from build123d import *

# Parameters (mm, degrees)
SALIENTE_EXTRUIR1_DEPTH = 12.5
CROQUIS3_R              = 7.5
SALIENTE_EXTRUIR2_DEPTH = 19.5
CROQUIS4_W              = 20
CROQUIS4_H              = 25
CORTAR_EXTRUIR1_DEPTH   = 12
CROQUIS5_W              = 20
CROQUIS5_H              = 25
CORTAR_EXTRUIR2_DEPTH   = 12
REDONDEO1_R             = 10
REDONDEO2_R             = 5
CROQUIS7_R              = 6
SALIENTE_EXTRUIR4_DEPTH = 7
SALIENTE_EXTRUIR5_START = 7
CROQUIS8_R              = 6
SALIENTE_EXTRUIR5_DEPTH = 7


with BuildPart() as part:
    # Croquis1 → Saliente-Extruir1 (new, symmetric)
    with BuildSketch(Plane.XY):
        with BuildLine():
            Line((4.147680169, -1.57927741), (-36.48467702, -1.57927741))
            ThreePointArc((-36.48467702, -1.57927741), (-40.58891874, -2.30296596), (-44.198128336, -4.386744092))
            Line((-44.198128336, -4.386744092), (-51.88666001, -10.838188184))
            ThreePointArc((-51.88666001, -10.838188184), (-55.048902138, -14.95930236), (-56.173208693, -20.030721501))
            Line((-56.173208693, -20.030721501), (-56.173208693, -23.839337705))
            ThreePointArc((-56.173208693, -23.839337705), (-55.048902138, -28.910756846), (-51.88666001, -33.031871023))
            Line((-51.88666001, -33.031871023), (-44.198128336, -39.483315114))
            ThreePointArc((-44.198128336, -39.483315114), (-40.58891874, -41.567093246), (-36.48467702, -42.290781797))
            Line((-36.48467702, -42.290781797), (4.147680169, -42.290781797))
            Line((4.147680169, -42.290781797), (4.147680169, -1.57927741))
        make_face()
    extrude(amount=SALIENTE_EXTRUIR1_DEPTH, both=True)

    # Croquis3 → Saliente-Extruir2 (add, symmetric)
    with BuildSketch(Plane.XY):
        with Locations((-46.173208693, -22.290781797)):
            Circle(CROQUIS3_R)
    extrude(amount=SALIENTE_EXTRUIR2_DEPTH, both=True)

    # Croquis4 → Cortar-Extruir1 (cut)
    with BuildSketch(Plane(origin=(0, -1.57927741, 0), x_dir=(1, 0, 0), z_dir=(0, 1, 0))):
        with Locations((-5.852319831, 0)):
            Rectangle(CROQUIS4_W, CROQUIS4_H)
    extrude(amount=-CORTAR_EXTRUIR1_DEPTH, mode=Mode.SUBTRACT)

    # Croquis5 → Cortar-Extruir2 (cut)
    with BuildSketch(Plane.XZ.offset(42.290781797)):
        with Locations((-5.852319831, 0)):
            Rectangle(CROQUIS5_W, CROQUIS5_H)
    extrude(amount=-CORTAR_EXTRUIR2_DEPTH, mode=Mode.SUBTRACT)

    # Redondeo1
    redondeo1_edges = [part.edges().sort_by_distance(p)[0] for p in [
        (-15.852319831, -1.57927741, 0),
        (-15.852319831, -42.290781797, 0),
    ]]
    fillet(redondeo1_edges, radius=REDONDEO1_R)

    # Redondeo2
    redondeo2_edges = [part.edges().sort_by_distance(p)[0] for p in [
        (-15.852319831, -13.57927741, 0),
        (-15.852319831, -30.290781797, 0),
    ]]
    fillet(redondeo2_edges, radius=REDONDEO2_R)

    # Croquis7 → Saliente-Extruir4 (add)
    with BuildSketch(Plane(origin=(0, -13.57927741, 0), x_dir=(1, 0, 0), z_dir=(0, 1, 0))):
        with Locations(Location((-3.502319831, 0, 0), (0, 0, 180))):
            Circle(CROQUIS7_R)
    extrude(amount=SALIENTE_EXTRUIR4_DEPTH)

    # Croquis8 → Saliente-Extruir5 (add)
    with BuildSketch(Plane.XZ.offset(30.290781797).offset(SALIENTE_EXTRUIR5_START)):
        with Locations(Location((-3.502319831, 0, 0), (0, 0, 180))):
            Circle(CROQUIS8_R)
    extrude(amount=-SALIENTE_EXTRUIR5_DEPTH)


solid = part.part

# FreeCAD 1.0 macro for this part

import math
import FreeCAD as App
import Part
import Sketcher
from FreeCAD import Vector
Q = App.Units.Quantity


def edges_at(feature, points):
    """Names of the edges that pass closest to the given points."""
    edges = feature.Shape.Edges
    near = lambda p: min(range(len(edges)), key=lambda i: edges[i].distToShape(Part.Vertex(*p))[0])
    return sorted({f"Edge{near(p) + 1}" for p in points})

doc = App.newDocument("Part")
body = doc.addObject("PartDesign::Body", "Body")

sketch1 = body.newObject("Sketcher::SketchObject", "Sketch")
sketch1.AttachmentSupport = (doc.getObject("XY_Plane"), [""])
sketch1.MapMode = "FlatFace"
sketch1.addGeometry(Part.LineSegment(Vector(4.1, -1.6, 0), Vector(-36.5, -1.6, 0)), False)
sketch1.addGeometry(Part.ArcOfCircle(Part.Circle(Vector(-36.5, -13.6, 0), Vector(0, 0, 1), 12), math.radians(90), math.radians(130)), False)
sketch1.addGeometry(Part.LineSegment(Vector(-44.2, -4.4, 0), Vector(-51.9, -10.8, 0)), False)
sketch1.addGeometry(Part.ArcOfCircle(Part.Circle(Vector(-44.2, -20, 0), Vector(0, 0, 1), 12), math.radians(130), math.radians(180)), False)
sketch1.addGeometry(Part.LineSegment(Vector(-56.2, -20, 0), Vector(-56.2, -23.8, 0)), False)
sketch1.addGeometry(Part.ArcOfCircle(Part.Circle(Vector(-44.2, -23.8, 0), Vector(0, 0, 1), 12), math.radians(180), math.radians(230)), False)
sketch1.addGeometry(Part.LineSegment(Vector(-51.9, -33, 0), Vector(-44.2, -39.5, 0)), False)
sketch1.addGeometry(Part.ArcOfCircle(Part.Circle(Vector(-36.5, -30.3, 0), Vector(0, 0, 1), 12), math.radians(-130), math.radians(-90)), False)
sketch1.addGeometry(Part.LineSegment(Vector(-36.5, -42.3, 0), Vector(4.1, -42.3, 0)), False)
sketch1.addGeometry(Part.LineSegment(Vector(4.1, -42.3, 0), Vector(4.1, -1.6, 0)), False)
sketch1.addConstraint(Sketcher.Constraint("Tangent", 0, 2, 1, 1))
sketch1.addConstraint(Sketcher.Constraint("Tangent", 1, 2, 2, 1))
sketch1.addConstraint(Sketcher.Constraint("Tangent", 2, 2, 3, 1))
sketch1.addConstraint(Sketcher.Constraint("Tangent", 3, 2, 4, 1))
sketch1.addConstraint(Sketcher.Constraint("Tangent", 4, 2, 5, 1))
sketch1.addConstraint(Sketcher.Constraint("Tangent", 5, 2, 6, 1))
sketch1.addConstraint(Sketcher.Constraint("Tangent", 6, 2, 7, 1))
sketch1.addConstraint(Sketcher.Constraint("Tangent", 7, 2, 8, 1))
sketch1.addConstraint(Sketcher.Constraint("Coincident", 8, 2, 9, 1))
sketch1.addConstraint(Sketcher.Constraint("Coincident", 9, 2, 0, 1))
sketch1.addConstraint(Sketcher.Constraint("Horizontal", 0))
sketch1.addConstraint(Sketcher.Constraint("Vertical", 4))
sketch1.addConstraint(Sketcher.Constraint("Horizontal", 8))
sketch1.addConstraint(Sketcher.Constraint("Vertical", 9))
sketch1.addConstraint(Sketcher.Constraint("Equal", 1, 3))
sketch1.addConstraint(Sketcher.Constraint("Equal", 3, 5))
sketch1.addConstraint(Sketcher.Constraint("Equal", 5, 7))
sketch1.addConstraint(Sketcher.Constraint("Vertical", 1, 3, 7, 3))
sketch1.addConstraint(Sketcher.Constraint("Vertical", 2, 2, 5, 2))
sketch1.addConstraint(Sketcher.Constraint("Radius", 1, Q("12 mm")))
sketch1.addConstraint(Sketcher.Constraint("Angle", 2, Q("-140 deg")))
sketch1.addConstraint(Sketcher.Constraint("DistanceX", 0, 2, 0, 1, Q("40.632357 mm")))
sketch1.addConstraint(Sketcher.Constraint("DistanceY", 4, 2, 4, 1, Q("3.808616 mm")))
sketch1.addConstraint(Sketcher.Constraint("DistanceY", 9, 1, 9, 2, Q("40.711504 mm")))
sketch1.addConstraint(Sketcher.Constraint("DistanceX", 3, 3, -1, 1, Q("44.173209 mm")))
sketch1.addConstraint(Sketcher.Constraint("DistanceY", 3, 3, -1, 1, Q("20.030721 mm")))
pad1 = body.newObject("PartDesign::Pad", "Pad")
pad1.Profile = sketch1
pad1.Length = 25
pad1.Midplane = True

sketch2 = body.newObject("Sketcher::SketchObject", "Sketch001")
sketch2.AttachmentSupport = (doc.getObject("XY_Plane"), [""])
sketch2.MapMode = "FlatFace"
sketch2.addGeometry(Part.Circle(Vector(-46, -22, 0), Vector(0, 0, 1), 8), False)
sketch2.addConstraint(Sketcher.Constraint("Diameter", 0, Q("15 mm")))
sketch2.addConstraint(Sketcher.Constraint("DistanceX", 0, 3, -1, 1, Q("46.173209 mm")))
sketch2.addConstraint(Sketcher.Constraint("DistanceY", 0, 3, -1, 1, Q("22.290782 mm")))
pad2 = body.newObject("PartDesign::Pad", "Pad001")
pad2.Profile = sketch2
pad2.Length = 39
pad2.Midplane = True

sketch3 = body.newObject("Sketcher::SketchObject", "Sketch002")
sketch3.AttachmentSupport = (doc.getObject("XZ_Plane"), [""])
sketch3.MapMode = "FlatFace"
sketch3.AttachmentOffset = App.Placement(Vector(0, 0, 1.579277), App.Rotation())
sketch3.addGeometry(Part.LineSegment(Vector(-16, -12, 0), Vector(-16, 12, 0)), False)
sketch3.addGeometry(Part.LineSegment(Vector(-16, 12, 0), Vector(4, 12, 0)), False)
sketch3.addGeometry(Part.LineSegment(Vector(4, 12, 0), Vector(4, -12, 0)), False)
sketch3.addGeometry(Part.LineSegment(Vector(4, -12, 0), Vector(-16, -12, 0)), False)
sketch3.addConstraint(Sketcher.Constraint("Coincident", 0, 2, 1, 1))
sketch3.addConstraint(Sketcher.Constraint("Coincident", 1, 2, 2, 1))
sketch3.addConstraint(Sketcher.Constraint("Coincident", 2, 2, 3, 1))
sketch3.addConstraint(Sketcher.Constraint("Coincident", 3, 2, 0, 1))
sketch3.addConstraint(Sketcher.Constraint("Vertical", 0))
sketch3.addConstraint(Sketcher.Constraint("Horizontal", 1))
sketch3.addConstraint(Sketcher.Constraint("Vertical", 2))
sketch3.addConstraint(Sketcher.Constraint("Horizontal", 3))
sketch3.addConstraint(Sketcher.Constraint("DistanceX", 1, 1, 1, 2, Q("20 mm")))
sketch3.addConstraint(Sketcher.Constraint("DistanceY", 0, 1, 0, 2, Q("25 mm")))
sketch3.addConstraint(Sketcher.Constraint("DistanceY", -1, 1, 0, 2, Q("12.5 mm")))
sketch3.addConstraint(Sketcher.Constraint("DistanceX", 0, 2, -1, 1, Q("15.85232 mm")))
pocket1 = body.newObject("PartDesign::Pocket", "Pocket")
pocket1.Profile = sketch3
pocket1.Length = 12
pocket1.Reversed = True

sketch4 = body.newObject("Sketcher::SketchObject", "Sketch003")
sketch4.AttachmentSupport = (doc.getObject("XZ_Plane"), [""])
sketch4.MapMode = "FlatFace"
sketch4.AttachmentOffset = App.Placement(Vector(0, 0, 42.290782), App.Rotation())
sketch4.addGeometry(Part.LineSegment(Vector(-16, 12, 0), Vector(-16, -12, 0)), False)
sketch4.addGeometry(Part.LineSegment(Vector(-16, -12, 0), Vector(4, -12, 0)), False)
sketch4.addGeometry(Part.LineSegment(Vector(4, -12, 0), Vector(4, 12, 0)), False)
sketch4.addGeometry(Part.LineSegment(Vector(4, 12, 0), Vector(-16, 12, 0)), False)
sketch4.addConstraint(Sketcher.Constraint("Coincident", 0, 2, 1, 1))
sketch4.addConstraint(Sketcher.Constraint("Coincident", 1, 2, 2, 1))
sketch4.addConstraint(Sketcher.Constraint("Coincident", 2, 2, 3, 1))
sketch4.addConstraint(Sketcher.Constraint("Coincident", 3, 2, 0, 1))
sketch4.addConstraint(Sketcher.Constraint("Vertical", 0))
sketch4.addConstraint(Sketcher.Constraint("Horizontal", 1))
sketch4.addConstraint(Sketcher.Constraint("Vertical", 2))
sketch4.addConstraint(Sketcher.Constraint("Horizontal", 3))
sketch4.addConstraint(Sketcher.Constraint("DistanceX", 1, 1, 1, 2, Q("20 mm")))
sketch4.addConstraint(Sketcher.Constraint("DistanceY", 0, 2, 0, 1, Q("25 mm")))
sketch4.addConstraint(Sketcher.Constraint("DistanceY", 0, 2, -1, 1, Q("12.5 mm")))
sketch4.addConstraint(Sketcher.Constraint("DistanceX", 0, 2, -1, 1, Q("15.85232 mm")))
pocket2 = body.newObject("PartDesign::Pocket", "Pocket001")
pocket2.Profile = sketch4
pocket2.Length = 12
doc.recompute()

fillet = body.newObject("PartDesign::Fillet", "Fillet")
fillet.Base = (pocket2, edges_at(pocket2, [(-15.852, -1.579, 0), (-15.852, -42.291, 0)]))
fillet.Radius = 10
doc.recompute()

fillet2 = body.newObject("PartDesign::Fillet", "Fillet001")
fillet2.Base = (fillet, edges_at(fillet, [(-15.852, -13.579, 0), (-15.852, -30.291, 0)]))
fillet2.Radius = 5

sketch5 = body.newObject("Sketcher::SketchObject", "Sketch004")
sketch5.AttachmentSupport = (doc.getObject("XZ_Plane"), [""])
sketch5.MapMode = "FlatFace"
sketch5.AttachmentOffset = App.Placement(Vector(0, 0, 13.579277), App.Rotation())
sketch5.addGeometry(Part.Circle(Vector(-4, 0, 0), Vector(0, 0, 1), 6), False)
sketch5.addConstraint(Sketcher.Constraint("PointOnObject", 0, 3, -1))
sketch5.addConstraint(Sketcher.Constraint("Diameter", 0, Q("12 mm")))
sketch5.addConstraint(Sketcher.Constraint("DistanceX", 0, 3, -1, 1, Q("3.50232 mm")))
pad3 = body.newObject("PartDesign::Pad", "Pad002")
pad3.Profile = sketch5
pad3.Length = 7
pad3.Reversed = True

sketch6 = body.newObject("Sketcher::SketchObject", "Sketch005")
sketch6.AttachmentSupport = (doc.getObject("XZ_Plane"), [""])
sketch6.MapMode = "FlatFace"
sketch6.AttachmentOffset = App.Placement(Vector(0, 0, 37.290782), App.Rotation())
sketch6.addGeometry(Part.Circle(Vector(-4, 0, 0), Vector(0, 0, 1), 6), False)
sketch6.addConstraint(Sketcher.Constraint("PointOnObject", 0, 3, -1))
sketch6.addConstraint(Sketcher.Constraint("Diameter", 0, Q("12 mm")))
sketch6.addConstraint(Sketcher.Constraint("DistanceX", 0, 3, -1, 1, Q("3.50232 mm")))
pad4 = body.newObject("PartDesign::Pad", "Pad003")
pad4.Profile = sketch6
pad4.Length = 7
pad4.Reversed = True

doc.recompute()
